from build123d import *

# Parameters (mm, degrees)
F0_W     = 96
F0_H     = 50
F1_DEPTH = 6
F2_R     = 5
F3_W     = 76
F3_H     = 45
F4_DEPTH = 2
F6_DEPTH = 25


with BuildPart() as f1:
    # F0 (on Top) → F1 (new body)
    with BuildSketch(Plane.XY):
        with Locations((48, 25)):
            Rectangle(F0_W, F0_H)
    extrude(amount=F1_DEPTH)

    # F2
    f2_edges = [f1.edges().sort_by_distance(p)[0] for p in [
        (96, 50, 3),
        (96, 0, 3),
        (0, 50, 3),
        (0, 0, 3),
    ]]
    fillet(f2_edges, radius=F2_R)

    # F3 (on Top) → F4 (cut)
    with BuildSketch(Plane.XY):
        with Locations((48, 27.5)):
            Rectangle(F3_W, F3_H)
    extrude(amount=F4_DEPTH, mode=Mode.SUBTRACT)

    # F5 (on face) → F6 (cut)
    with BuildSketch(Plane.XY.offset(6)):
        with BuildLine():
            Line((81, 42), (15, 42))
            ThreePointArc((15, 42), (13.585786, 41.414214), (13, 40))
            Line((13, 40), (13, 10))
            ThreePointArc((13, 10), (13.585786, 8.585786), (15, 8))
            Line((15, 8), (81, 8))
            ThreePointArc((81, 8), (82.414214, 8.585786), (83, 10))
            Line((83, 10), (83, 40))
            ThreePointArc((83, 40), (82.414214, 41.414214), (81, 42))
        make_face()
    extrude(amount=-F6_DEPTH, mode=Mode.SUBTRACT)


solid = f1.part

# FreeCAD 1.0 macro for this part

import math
import FreeCAD as App
import Part
import Sketcher
from FreeCAD import Vector


def edges_at(feature, points):
    """Names of the edges that pass closest to the given points."""
    edges = feature.Shape.Edges
    near = lambda p: min(range(len(edges)), key=lambda i: edges[i].distToShape(Part.Vertex(*p))[0])
    return sorted({f"Edge{near(p) + 1}" for p in points})

doc = App.newDocument("Part")
body = doc.addObject("PartDesign::Body", "Body")

# Sketch on XY plane
sketch1 = body.newObject("Sketcher::SketchObject", "Sketch")
sketch1.AttachmentSupport = (doc.getObject("XY_Plane"), [""])
sketch1.MapMode = "FlatFace"
sketch1.addGeometry([
    Part.LineSegment(Vector(0, 50, 0), Vector(0, 0, 0)),
    Part.LineSegment(Vector(0, 0, 0), Vector(96, 0, 0)),
    Part.LineSegment(Vector(96, 0, 0), Vector(96, 50, 0)),
    Part.LineSegment(Vector(96, 50, 0), Vector(0, 50, 0)),
], False)
sketch1.addConstraint([
    Sketcher.Constraint("Coincident", 0, 2, 1, 1),
    Sketcher.Constraint("Coincident", 1, 2, 2, 1),
    Sketcher.Constraint("Coincident", 2, 2, 3, 1),
    Sketcher.Constraint("Coincident", 3, 2, 0, 1),
    Sketcher.Constraint("Vertical", 0),
    Sketcher.Constraint("Horizontal", 1),
    Sketcher.Constraint("Vertical", 2),
    Sketcher.Constraint("Horizontal", 3),
    Sketcher.Constraint("Coincident", 0, 2, -1, 1),
    Sketcher.Constraint("DistanceX", 1, 1, 1, 2, 96.0),
    Sketcher.Constraint("DistanceY", 0, 2, 0, 1, 50.0),
])
pad1 = body.newObject("PartDesign::Pad", "Pad")
pad1.Profile = sketch1
pad1.Length = 6
doc.recompute()

fillet = body.newObject("PartDesign::Fillet", "Fillet")
fillet.Base = (pad1, edges_at(pad1, [
    (96, 50, 3),
    (96, 0, 3),
    (0, 50, 3),
    (0, 0, 3),
]))
fillet.Radius = 5

# Sketch on XY plane
sketch2 = body.newObject("Sketcher::SketchObject", "Sketch001")
sketch2.AttachmentSupport = (doc.getObject("XY_Plane"), [""])
sketch2.MapMode = "FlatFace"
sketch2.addGeometry([
    Part.LineSegment(Vector(10, 50, 0), Vector(10, 5, 0)),
    Part.LineSegment(Vector(10, 5, 0), Vector(86, 5, 0)),
    Part.LineSegment(Vector(86, 5, 0), Vector(86, 50, 0)),
    Part.LineSegment(Vector(86, 50, 0), Vector(10, 50, 0)),
], False)
sketch2.addConstraint([
    Sketcher.Constraint("Coincident", 0, 2, 1, 1),
    Sketcher.Constraint("Coincident", 1, 2, 2, 1),
    Sketcher.Constraint("Coincident", 2, 2, 3, 1),
    Sketcher.Constraint("Coincident", 3, 2, 0, 1),
    Sketcher.Constraint("Vertical", 0),
    Sketcher.Constraint("Horizontal", 1),
    Sketcher.Constraint("Vertical", 2),
    Sketcher.Constraint("Horizontal", 3),
    Sketcher.Constraint("DistanceX", 1, 1, 1, 2, 76.0),
    Sketcher.Constraint("DistanceY", 0, 2, 0, 1, 45.0),
    Sketcher.Constraint("DistanceX", -1, 1, 0, 2, 10.0),
    Sketcher.Constraint("DistanceY", -1, 1, 0, 2, 5.0),
])
pocket1 = body.newObject("PartDesign::Pocket", "Pocket")
pocket1.Profile = sketch2
pocket1.Length = 2
pocket1.Reversed = True

# Sketch on XY plane
sketch3 = body.newObject("Sketcher::SketchObject", "Sketch002")
sketch3.AttachmentSupport = (doc.getObject("XY_Plane"), [""])
sketch3.MapMode = "FlatFace"
sketch3.AttachmentOffset = App.Placement(Vector(0, 0, 6), App.Rotation())
sketch3.addGeometry([
    Part.LineSegment(Vector(81, 42, 0), Vector(15, 42, 0)),  # 0
    Part.ArcOfCircle(Part.Circle(Vector(15, 40, 0), Vector(0, 0, 1), 2), math.radians(90), math.radians(180)),  # 1
    Part.LineSegment(Vector(13, 40, 0), Vector(13, 10, 0)),  # 2
    Part.ArcOfCircle(Part.Circle(Vector(15, 10, 0), Vector(0, 0, 1), 2), math.radians(180), math.radians(270)),  # 3
    Part.LineSegment(Vector(15, 8, 0), Vector(81, 8, 0)),  # 4
    Part.ArcOfCircle(Part.Circle(Vector(81, 10, 0), Vector(0, 0, 1), 2), math.radians(-90), math.radians(0)),  # 5
    Part.LineSegment(Vector(83, 10, 0), Vector(83, 40, 0)),  # 6
    Part.ArcOfCircle(Part.Circle(Vector(81, 40, 0), Vector(0, 0, 1), 2), math.radians(0), math.radians(90)),  # 7
], False)
sketch3.addConstraint([
    Sketcher.Constraint("Tangent", 0, 2, 1, 1),
    Sketcher.Constraint("Tangent", 1, 2, 2, 1),
    Sketcher.Constraint("Tangent", 2, 2, 3, 1),
    Sketcher.Constraint("Tangent", 3, 2, 4, 1),
    Sketcher.Constraint("Tangent", 4, 2, 5, 1),
    Sketcher.Constraint("Tangent", 5, 2, 6, 1),
    Sketcher.Constraint("Tangent", 6, 2, 7, 1),
    Sketcher.Constraint("Tangent", 7, 2, 0, 1),
    Sketcher.Constraint("Horizontal", 0),
    Sketcher.Constraint("Vertical", 2),
    Sketcher.Constraint("Horizontal", 4),
    Sketcher.Constraint("Vertical", 6),
    Sketcher.Constraint("Equal", 1, 3),
    Sketcher.Constraint("Equal", 3, 5),
    Sketcher.Constraint("Equal", 5, 7),
    Sketcher.Constraint("Radius", 1, 1.999999),
    Sketcher.Constraint("DistanceX", 0, 2, 0, 1, 66.0),
    Sketcher.Constraint("DistanceY", 2, 2, 2, 1, 30.0),
    Sketcher.Constraint("DistanceX", -1, 1, 1, 3, 14.999999),
    Sketcher.Constraint("DistanceY", -1, 1, 1, 3, 40.000001),
])
pocket2 = body.newObject("PartDesign::Pocket", "Pocket001")
pocket2.Profile = sketch3
pocket2.Length = 25

doc.recompute()
